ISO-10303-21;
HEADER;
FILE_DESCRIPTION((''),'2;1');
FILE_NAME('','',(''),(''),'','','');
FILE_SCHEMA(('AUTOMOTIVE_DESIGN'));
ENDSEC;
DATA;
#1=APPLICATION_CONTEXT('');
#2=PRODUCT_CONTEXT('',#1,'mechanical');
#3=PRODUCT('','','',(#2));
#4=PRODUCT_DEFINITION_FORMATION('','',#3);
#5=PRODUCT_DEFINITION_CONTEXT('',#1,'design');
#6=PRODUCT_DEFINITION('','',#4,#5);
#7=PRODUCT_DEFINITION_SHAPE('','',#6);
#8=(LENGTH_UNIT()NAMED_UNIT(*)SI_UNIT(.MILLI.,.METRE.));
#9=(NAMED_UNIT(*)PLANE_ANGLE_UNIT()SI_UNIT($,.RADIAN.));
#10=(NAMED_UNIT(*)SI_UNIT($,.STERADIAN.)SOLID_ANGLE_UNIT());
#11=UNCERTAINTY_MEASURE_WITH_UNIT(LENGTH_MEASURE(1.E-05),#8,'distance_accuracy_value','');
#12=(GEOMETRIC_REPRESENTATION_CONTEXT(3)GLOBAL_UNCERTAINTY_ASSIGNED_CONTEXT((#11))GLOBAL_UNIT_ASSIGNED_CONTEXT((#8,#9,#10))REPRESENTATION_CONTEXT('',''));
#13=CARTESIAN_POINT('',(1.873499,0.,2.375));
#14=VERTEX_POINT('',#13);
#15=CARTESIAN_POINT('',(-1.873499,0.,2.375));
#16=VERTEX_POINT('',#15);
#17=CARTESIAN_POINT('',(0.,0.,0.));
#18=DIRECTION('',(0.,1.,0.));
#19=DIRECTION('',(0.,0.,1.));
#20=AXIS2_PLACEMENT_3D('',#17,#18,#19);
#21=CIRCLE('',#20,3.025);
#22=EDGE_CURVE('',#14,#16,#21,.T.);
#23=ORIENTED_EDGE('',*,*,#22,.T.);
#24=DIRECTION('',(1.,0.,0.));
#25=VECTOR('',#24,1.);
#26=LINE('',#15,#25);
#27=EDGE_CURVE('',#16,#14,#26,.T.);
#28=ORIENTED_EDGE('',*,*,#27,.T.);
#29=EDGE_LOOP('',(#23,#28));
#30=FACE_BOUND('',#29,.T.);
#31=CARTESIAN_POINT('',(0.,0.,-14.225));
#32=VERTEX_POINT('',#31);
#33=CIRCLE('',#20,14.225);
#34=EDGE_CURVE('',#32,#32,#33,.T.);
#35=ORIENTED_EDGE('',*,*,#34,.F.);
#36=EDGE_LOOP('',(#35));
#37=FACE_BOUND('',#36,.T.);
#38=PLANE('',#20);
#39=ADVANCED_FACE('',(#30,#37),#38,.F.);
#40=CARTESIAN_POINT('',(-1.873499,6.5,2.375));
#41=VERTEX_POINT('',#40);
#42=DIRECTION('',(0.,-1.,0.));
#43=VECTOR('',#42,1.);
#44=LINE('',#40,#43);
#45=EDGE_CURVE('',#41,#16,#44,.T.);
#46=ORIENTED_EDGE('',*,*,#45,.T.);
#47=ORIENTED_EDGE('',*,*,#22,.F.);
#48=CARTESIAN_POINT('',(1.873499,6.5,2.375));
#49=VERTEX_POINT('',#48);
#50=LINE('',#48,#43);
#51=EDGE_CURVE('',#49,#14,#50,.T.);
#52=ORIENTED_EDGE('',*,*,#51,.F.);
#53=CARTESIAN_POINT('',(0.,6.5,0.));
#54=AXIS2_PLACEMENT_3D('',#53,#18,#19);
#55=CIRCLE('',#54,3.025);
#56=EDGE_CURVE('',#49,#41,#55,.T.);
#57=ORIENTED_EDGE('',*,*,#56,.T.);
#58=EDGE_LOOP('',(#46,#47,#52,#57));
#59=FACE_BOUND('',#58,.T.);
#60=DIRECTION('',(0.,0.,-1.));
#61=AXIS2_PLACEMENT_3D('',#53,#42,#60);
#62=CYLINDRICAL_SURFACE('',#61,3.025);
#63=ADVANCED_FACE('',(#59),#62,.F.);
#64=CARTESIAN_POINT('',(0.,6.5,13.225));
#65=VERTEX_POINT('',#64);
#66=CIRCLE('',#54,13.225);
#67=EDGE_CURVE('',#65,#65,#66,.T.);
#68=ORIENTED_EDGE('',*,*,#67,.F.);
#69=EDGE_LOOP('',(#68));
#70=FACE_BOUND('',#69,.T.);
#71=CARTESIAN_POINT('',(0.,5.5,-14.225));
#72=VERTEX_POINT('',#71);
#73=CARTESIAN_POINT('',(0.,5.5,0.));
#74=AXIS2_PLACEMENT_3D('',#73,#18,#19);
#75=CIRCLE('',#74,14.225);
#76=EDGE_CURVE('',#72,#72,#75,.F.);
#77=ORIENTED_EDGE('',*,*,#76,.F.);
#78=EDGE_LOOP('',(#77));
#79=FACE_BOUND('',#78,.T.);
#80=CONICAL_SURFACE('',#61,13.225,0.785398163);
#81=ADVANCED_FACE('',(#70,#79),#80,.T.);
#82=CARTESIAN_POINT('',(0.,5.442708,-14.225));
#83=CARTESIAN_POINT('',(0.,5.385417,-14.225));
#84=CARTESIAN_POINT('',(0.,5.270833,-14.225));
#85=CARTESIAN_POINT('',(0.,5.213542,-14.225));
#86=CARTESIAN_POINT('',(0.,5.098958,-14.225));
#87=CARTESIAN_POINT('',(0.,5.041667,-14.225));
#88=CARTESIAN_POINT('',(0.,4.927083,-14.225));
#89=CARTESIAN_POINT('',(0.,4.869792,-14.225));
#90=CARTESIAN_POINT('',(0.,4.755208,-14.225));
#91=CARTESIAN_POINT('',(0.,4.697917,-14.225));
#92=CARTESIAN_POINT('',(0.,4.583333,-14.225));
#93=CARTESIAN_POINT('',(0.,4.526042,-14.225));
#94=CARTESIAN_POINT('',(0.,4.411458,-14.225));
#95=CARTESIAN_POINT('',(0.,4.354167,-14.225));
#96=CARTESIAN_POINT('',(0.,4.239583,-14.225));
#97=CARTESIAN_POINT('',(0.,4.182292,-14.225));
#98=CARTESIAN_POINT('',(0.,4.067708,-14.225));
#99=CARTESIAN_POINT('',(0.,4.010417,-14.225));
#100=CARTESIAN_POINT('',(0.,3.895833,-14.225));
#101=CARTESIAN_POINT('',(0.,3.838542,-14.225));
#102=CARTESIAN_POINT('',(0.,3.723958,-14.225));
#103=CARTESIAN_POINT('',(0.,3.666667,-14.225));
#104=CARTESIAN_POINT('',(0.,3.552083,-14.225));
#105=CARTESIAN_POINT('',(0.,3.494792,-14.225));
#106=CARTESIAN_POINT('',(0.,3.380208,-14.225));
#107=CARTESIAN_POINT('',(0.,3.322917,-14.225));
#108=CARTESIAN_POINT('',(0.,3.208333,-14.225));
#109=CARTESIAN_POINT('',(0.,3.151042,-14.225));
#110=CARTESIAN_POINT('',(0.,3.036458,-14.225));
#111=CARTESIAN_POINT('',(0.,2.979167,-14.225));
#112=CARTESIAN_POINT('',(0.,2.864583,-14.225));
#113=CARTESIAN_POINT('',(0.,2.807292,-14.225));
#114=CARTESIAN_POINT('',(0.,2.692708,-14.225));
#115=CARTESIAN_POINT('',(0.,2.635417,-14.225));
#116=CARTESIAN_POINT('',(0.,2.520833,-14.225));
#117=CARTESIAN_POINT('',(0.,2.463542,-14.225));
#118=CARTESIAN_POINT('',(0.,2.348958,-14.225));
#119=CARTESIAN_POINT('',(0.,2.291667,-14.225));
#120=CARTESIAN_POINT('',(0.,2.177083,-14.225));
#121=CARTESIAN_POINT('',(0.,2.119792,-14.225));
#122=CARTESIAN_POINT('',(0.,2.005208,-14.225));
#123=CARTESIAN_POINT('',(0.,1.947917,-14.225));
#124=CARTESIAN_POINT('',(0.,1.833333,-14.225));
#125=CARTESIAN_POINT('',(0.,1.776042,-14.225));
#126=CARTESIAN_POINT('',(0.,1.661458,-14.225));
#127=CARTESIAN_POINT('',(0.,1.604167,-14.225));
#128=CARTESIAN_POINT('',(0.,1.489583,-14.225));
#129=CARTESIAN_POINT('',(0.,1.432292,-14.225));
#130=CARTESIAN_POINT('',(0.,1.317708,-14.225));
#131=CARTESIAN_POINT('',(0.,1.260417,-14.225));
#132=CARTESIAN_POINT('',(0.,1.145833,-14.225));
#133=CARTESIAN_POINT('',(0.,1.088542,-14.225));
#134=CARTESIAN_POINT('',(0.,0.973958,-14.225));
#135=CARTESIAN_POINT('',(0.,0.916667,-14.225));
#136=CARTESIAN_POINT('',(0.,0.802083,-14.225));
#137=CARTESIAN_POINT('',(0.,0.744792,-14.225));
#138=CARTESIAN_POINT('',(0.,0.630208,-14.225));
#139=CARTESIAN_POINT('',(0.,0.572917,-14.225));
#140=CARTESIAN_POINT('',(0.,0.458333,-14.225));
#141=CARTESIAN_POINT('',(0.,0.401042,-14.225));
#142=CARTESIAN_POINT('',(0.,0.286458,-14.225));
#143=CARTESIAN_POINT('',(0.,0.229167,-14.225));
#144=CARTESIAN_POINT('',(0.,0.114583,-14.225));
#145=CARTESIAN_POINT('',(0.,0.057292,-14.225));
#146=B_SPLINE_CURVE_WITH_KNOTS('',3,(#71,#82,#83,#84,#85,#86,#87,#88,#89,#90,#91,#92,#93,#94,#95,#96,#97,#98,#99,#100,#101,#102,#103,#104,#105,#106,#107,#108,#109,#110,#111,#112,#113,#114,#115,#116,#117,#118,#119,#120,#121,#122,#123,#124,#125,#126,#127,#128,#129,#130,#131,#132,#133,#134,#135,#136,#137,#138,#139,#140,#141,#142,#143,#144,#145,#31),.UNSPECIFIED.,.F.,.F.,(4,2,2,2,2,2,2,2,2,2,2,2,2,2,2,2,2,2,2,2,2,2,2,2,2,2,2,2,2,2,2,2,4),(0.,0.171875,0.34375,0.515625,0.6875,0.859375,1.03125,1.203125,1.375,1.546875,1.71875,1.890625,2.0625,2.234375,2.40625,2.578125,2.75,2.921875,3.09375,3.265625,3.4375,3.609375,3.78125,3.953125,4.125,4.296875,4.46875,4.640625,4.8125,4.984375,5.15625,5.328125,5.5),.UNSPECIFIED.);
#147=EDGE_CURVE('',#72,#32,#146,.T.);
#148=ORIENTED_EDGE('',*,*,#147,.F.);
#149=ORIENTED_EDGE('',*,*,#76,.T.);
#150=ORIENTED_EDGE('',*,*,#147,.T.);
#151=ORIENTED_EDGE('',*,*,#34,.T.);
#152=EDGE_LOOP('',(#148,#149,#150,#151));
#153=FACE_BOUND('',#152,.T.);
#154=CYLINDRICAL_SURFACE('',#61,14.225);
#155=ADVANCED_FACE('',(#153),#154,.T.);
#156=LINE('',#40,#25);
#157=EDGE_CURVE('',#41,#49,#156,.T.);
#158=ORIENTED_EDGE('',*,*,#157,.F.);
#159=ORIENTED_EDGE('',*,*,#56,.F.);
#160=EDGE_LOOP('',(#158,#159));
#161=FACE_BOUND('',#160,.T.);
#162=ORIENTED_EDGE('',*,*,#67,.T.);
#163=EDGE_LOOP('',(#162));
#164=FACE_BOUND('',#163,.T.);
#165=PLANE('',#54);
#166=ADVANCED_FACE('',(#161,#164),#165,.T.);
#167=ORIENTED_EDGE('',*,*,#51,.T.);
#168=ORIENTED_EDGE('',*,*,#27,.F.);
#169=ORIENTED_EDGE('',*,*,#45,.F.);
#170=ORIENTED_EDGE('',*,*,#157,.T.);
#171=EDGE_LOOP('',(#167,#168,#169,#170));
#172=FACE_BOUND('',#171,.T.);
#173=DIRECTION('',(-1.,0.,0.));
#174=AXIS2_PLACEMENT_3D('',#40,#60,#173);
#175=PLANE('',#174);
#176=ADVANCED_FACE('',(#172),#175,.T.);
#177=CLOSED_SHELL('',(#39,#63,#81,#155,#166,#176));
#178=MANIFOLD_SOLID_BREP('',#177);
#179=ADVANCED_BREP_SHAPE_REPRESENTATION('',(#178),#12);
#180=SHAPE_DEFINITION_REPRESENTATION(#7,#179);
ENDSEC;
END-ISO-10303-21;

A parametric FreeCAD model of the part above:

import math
import FreeCAD as App
import Part
import Sketcher

V = App.Vector


def edges_at(feature, points):
    """Names of the edges that pass closest to the given points."""
    edges = feature.Shape.Edges
    near = lambda p: min(range(len(edges)), key=lambda i: edges[i].distToShape(Part.Vertex(*p))[0])
    return sorted({f"Edge{near(p) + 1}" for p in points})

doc = App.newDocument("Part")
body = doc.addObject("PartDesign::Body", "Body")

sketch1 = body.newObject("Sketcher::SketchObject", "Sketch")
sketch1.AttachmentSupport = (doc.getObject("XZ_Plane"), [""])
sketch1.MapMode = "FlatFace"
sketch1.addGeometry([
    Part.Circle(V(0, 0, 0), V(0, 0, 1), 14.2),
    Part.LineSegment(V(1.9, 2.4, 0), V(-1.9, 2.4, 0)),
    Part.ArcOfCircle(Part.Circle(V(0, 0, 0), V(0, 0, 1), 3), math.radians(128), math.radians(412)),
], False)
sketch1.addConstraint([
    Sketcher.Constraint("Coincident", 1, 1, 2, 2),
    Sketcher.Constraint("Coincident", 2, 1, 1, 2),
    Sketcher.Constraint("Horizontal", 1),
    Sketcher.Constraint("Coincident", 0, 3, -1, 1),
    Sketcher.Constraint("Coincident", 2, 3, -1, 1),
    Sketcher.Constraint("Diameter", 0, 28.45),
    Sketcher.Constraint("Radius", 2, 3.025),
    Sketcher.Constraint("DistanceX", 1, 2, 1, 1, 3.746999),
])
pad1 = body.newObject("PartDesign::Pad", "Pad")
pad1.Profile = sketch1
pad1.Length = 6.5
pad1.Reversed = True
doc.recompute()

chamfer = body.newObject("PartDesign::Chamfer", "Chamfer")
chamfer.Base = (pad1, edges_at(pad1, [(0, 6.5, 14.225)]))
chamfer.Size = 1

doc.recompute()
